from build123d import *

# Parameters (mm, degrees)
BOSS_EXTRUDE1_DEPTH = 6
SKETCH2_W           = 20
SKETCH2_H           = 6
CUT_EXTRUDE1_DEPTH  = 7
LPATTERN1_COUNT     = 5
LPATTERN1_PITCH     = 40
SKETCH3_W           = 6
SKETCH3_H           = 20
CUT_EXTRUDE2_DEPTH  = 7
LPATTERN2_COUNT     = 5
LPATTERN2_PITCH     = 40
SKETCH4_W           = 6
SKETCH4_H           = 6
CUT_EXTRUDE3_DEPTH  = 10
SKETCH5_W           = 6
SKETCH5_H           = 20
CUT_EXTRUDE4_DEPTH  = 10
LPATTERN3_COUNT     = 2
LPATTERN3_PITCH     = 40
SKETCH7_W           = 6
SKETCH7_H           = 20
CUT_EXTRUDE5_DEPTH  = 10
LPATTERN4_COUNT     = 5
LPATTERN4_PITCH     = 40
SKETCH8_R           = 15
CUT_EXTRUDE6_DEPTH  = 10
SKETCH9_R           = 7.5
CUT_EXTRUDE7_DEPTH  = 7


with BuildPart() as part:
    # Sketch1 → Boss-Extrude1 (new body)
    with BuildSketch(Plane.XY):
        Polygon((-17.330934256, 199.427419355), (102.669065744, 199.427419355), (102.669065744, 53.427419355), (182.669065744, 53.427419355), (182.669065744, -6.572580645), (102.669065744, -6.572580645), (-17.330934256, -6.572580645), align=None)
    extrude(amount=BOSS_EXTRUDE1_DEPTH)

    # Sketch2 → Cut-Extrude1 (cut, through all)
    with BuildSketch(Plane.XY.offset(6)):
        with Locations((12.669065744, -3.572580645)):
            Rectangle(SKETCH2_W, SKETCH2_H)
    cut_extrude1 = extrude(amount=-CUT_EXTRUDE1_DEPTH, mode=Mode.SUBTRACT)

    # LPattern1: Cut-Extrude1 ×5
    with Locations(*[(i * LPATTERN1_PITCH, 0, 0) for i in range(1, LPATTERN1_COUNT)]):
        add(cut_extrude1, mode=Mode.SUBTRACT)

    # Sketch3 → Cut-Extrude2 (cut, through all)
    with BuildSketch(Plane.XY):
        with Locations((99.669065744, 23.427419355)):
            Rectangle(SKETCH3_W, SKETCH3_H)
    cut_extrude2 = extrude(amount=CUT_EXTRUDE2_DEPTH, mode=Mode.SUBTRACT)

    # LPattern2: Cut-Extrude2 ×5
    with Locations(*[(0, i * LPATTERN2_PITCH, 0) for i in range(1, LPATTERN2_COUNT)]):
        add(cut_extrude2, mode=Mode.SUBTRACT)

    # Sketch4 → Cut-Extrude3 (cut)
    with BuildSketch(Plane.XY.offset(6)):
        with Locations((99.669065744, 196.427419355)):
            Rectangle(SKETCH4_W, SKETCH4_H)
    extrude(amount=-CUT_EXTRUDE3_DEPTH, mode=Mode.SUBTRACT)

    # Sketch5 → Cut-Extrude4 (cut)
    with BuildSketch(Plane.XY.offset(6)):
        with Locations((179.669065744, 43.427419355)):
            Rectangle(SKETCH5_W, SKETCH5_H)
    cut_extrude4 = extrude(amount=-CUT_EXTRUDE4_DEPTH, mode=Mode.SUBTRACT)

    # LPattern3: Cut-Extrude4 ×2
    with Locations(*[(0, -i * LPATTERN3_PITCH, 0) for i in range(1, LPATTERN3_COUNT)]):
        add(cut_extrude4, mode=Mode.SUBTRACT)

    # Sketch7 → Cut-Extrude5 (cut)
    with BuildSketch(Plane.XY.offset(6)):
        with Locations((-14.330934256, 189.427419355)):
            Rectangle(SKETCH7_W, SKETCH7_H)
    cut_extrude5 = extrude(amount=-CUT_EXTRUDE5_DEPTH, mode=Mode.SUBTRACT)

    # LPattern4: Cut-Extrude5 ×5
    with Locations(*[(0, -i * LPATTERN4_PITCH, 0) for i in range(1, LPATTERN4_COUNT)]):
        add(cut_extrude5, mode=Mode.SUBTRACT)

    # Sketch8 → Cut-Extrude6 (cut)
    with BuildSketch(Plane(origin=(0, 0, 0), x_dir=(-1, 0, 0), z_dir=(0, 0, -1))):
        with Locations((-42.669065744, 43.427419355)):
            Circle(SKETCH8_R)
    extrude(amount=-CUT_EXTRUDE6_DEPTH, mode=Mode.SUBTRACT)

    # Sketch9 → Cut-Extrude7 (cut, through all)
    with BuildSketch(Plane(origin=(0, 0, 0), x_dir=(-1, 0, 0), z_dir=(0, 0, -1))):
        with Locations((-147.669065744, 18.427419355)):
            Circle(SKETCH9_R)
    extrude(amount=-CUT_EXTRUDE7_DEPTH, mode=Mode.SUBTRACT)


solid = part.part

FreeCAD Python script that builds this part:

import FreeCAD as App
import Part
import Sketcher

V = App.Vector

doc = App.newDocument("Part")
body = doc.addObject("PartDesign::Body", "Body")

# Sketch on XY plane
sketch1 = doc.addObject("Sketcher::SketchObject", "Sketch")
body.addObject(sketch1)
sketch1.AttachmentSupport = (doc.XY_Plane, [""])
sketch1.MapMode = "FlatFace"
sketch1.addGeometry([
    Part.LineSegment(V(102.669066, 199.427419, 0), V(-17.330934, 199.427419, 0)),  # 0
    Part.LineSegment(V(-17.330934, 199.427419, 0), V(-17.330934, -6.572581, 0)),  # 1
    Part.LineSegment(V(-17.330934, -6.572581, 0), V(182.669066, -6.572581, 0)),  # 2
    Part.LineSegment(V(182.669066, -6.572581, 0), V(182.669066, 53.427419, 0)),  # 3
    Part.LineSegment(V(182.669066, 53.427419, 0), V(102.669066, 53.427419, 0)),  # 4
    Part.LineSegment(V(102.669066, 53.427419, 0), V(102.669066, 199.427419, 0)),  # 5
], False)
sketch1.addConstraint([
    Sketcher.Constraint("Coincident", 0, 2, 1, 1),
    Sketcher.Constraint("Coincident", 1, 2, 2, 1),
    Sketcher.Constraint("Coincident", 2, 2, 3, 1),
    Sketcher.Constraint("Coincident", 3, 2, 4, 1),
    Sketcher.Constraint("Coincident", 4, 2, 5, 1),
    Sketcher.Constraint("Coincident", 5, 2, 0, 1),
    Sketcher.Constraint("Horizontal", 0),
    Sketcher.Constraint("Vertical", 1),
    Sketcher.Constraint("Horizontal", 2),
    Sketcher.Constraint("Vertical", 3),
    Sketcher.Constraint("Horizontal", 4),
    Sketcher.Constraint("Vertical", 5),
    Sketcher.Constraint("DistanceX", 0, 2, 0, 1, 120.0),
    Sketcher.Constraint("DistanceX", 2, 1, 2, 2, 200.0),
    Sketcher.Constraint("DistanceY", 1, 2, 1, 1, 206.0),
    Sketcher.Constraint("DistanceY", 3, 1, 3, 2, 60.0),
    Sketcher.Constraint("DistanceY", -1, 1, 0, 2, 199.427419),
    Sketcher.Constraint("DistanceX", 0, 2, -1, 1, 17.330934),
])
pad1 = doc.addObject("PartDesign::Pad", "Pad")
body.addObject(pad1)
pad1.Profile = sketch1
pad1.Length = 6

# Sketch on XY plane
sketch2 = doc.addObject("Sketcher::SketchObject", "Sketch001")
body.addObject(sketch2)
sketch2.AttachmentSupport = (doc.XY_Plane, [""])
sketch2.MapMode = "FlatFace"
sketch2.AttachmentOffset = App.Placement(V(0, 0, 6), App.Rotation())
sketch2.addGeometry([
    Part.LineSegment(V(2.669066, -0.572581, 0), V(2.669066, -6.572581, 0)),
    Part.LineSegment(V(2.669066, -6.572581, 0), V(22.669066, -6.572581, 0)),
    Part.LineSegment(V(22.669066, -6.572581, 0), V(22.669066, -0.572581, 0)),
    Part.LineSegment(V(22.669066, -0.572581, 0), V(2.669066, -0.572581, 0)),
], False)
sketch2.addConstraint([
    Sketcher.Constraint("Coincident", 0, 2, 1, 1),
    Sketcher.Constraint("Coincident", 1, 2, 2, 1),
    Sketcher.Constraint("Coincident", 2, 2, 3, 1),
    Sketcher.Constraint("Coincident", 3, 2, 0, 1),
    Sketcher.Constraint("Vertical", 0),
    Sketcher.Constraint("Horizontal", 1),
    Sketcher.Constraint("Vertical", 2),
    Sketcher.Constraint("Horizontal", 3),
    Sketcher.Constraint("DistanceX", 1, 1, 1, 2, 20.0),
    Sketcher.Constraint("DistanceY", 0, 2, 0, 1, 6.0),
    Sketcher.Constraint("DistanceY", 0, 2, -1, 1, 6.572581),
    Sketcher.Constraint("DistanceX", -1, 1, 0, 2, 2.669066),
])
pocket1 = doc.addObject("PartDesign::Pocket", "Pocket")
body.addObject(pocket1)
pocket1.Profile = sketch2
pocket1.Type = "ThroughAll"
doc.recompute()

linearpattern = doc.addObject("PartDesign::LinearPattern", "LinearPattern")
body.addObject(linearpattern)
linearpattern.Originals = [pocket1]
linearpattern.Direction = (doc.X_Axis, [""])
linearpattern.Mode = "offset"
linearpattern.Offset = 40
linearpattern.Occurrences = 5
body.Tip = linearpattern

# Sketch on XY plane
sketch3 = doc.addObject("Sketcher::SketchObject", "Sketch002")
body.addObject(sketch3)
sketch3.AttachmentSupport = (doc.XY_Plane, [""])
sketch3.MapMode = "FlatFace"
sketch3.addGeometry([
    Part.LineSegment(V(96.669066, 33.427419, 0), V(96.669066, 13.427419, 0)),
    Part.LineSegment(V(96.669066, 13.427419, 0), V(102.669066, 13.427419, 0)),
    Part.LineSegment(V(102.669066, 13.427419, 0), V(102.669066, 33.427419, 0)),
    Part.LineSegment(V(102.669066, 33.427419, 0), V(96.669066, 33.427419, 0)),
], False)
sketch3.addConstraint([
    Sketcher.Constraint("Coincident", 0, 2, 1, 1),
    Sketcher.Constraint("Coincident", 1, 2, 2, 1),
    Sketcher.Constraint("Coincident", 2, 2, 3, 1),
    Sketcher.Constraint("Coincident", 3, 2, 0, 1),
    Sketcher.Constraint("Vertical", 0),
    Sketcher.Constraint("Horizontal", 1),
    Sketcher.Constraint("Vertical", 2),
    Sketcher.Constraint("Horizontal", 3),
    Sketcher.Constraint("DistanceX", 1, 1, 1, 2, 6.0),
    Sketcher.Constraint("DistanceY", 0, 2, 0, 1, 20.0),
    Sketcher.Constraint("DistanceY", -1, 1, 0, 2, 13.427419),
    Sketcher.Constraint("DistanceX", -1, 1, 0, 2, 96.669066),
])
pocket2 = doc.addObject("PartDesign::Pocket", "Pocket001")
body.addObject(pocket2)
pocket2.Profile = sketch3
pocket2.Type = "ThroughAll"
pocket2.Reversed = True
doc.recompute()

linearpattern2 = doc.addObject("PartDesign::LinearPattern", "LinearPattern001")
body.addObject(linearpattern2)
linearpattern2.Originals = [pocket2]
linearpattern2.Direction = (doc.Y_Axis, [""])
linearpattern2.Mode = "offset"
linearpattern2.Offset = 40
linearpattern2.Occurrences = 5
body.Tip = linearpattern2

# Sketch on XY plane
sketch4 = doc.addObject("Sketcher::SketchObject", "Sketch003")
body.addObject(sketch4)
sketch4.AttachmentSupport = (doc.XY_Plane, [""])
sketch4.MapMode = "FlatFace"
sketch4.AttachmentOffset = App.Placement(V(0, 0, 6), App.Rotation())
sketch4.addGeometry([
    Part.LineSegment(V(96.669066, 199.427419, 0), V(96.669066, 193.427419, 0)),
    Part.LineSegment(V(96.669066, 193.427419, 0), V(102.669066, 193.427419, 0)),
    Part.LineSegment(V(102.669066, 193.427419, 0), V(102.669066, 199.427419, 0)),
    Part.LineSegment(V(102.669066, 199.427419, 0), V(96.669066, 199.427419, 0)),
], False)
sketch4.addConstraint([
    Sketcher.Constraint("Coincident", 0, 2, 1, 1),
    Sketcher.Constraint("Coincident", 1, 2, 2, 1),
    Sketcher.Constraint("Coincident", 2, 2, 3, 1),
    Sketcher.Constraint("Coincident", 3, 2, 0, 1),
    Sketcher.Constraint("Vertical", 0),
    Sketcher.Constraint("Horizontal", 1),
    Sketcher.Constraint("Vertical", 2),
    Sketcher.Constraint("Horizontal", 3),
    Sketcher.Constraint("Equal", 3, 0),
    Sketcher.Constraint("DistanceX", 1, 1, 1, 2, 6.0),
    Sketcher.Constraint("DistanceY", -1, 1, 0, 2, 193.427419),
    Sketcher.Constraint("DistanceX", -1, 1, 0, 2, 96.669066),
])
pocket3 = doc.addObject("PartDesign::Pocket", "Pocket002")
body.addObject(pocket3)
pocket3.Profile = sketch4
pocket3.Length = 10

# Sketch on XY plane
sketch5 = doc.addObject("Sketcher::SketchObject", "Sketch004")
body.addObject(sketch5)
sketch5.AttachmentSupport = (doc.XY_Plane, [""])
sketch5.MapMode = "FlatFace"
sketch5.AttachmentOffset = App.Placement(V(0, 0, 6), App.Rotation())
sketch5.addGeometry([
    Part.LineSegment(V(176.669066, 53.427419, 0), V(176.669066, 33.427419, 0)),
    Part.LineSegment(V(176.669066, 33.427419, 0), V(182.669066, 33.427419, 0)),
    Part.LineSegment(V(182.669066, 33.427419, 0), V(182.669066, 53.427419, 0)),
    Part.LineSegment(V(182.669066, 53.427419, 0), V(176.669066, 53.427419, 0)),
], False)
sketch5.addConstraint([
    Sketcher.Constraint("Coincident", 0, 2, 1, 1),
    Sketcher.Constraint("Coincident", 1, 2, 2, 1),
    Sketcher.Constraint("Coincident", 2, 2, 3, 1),
    Sketcher.Constraint("Coincident", 3, 2, 0, 1),
    Sketcher.Constraint("Vertical", 0),
    Sketcher.Constraint("Horizontal", 1),
    Sketcher.Constraint("Vertical", 2),
    Sketcher.Constraint("Horizontal", 3),
    Sketcher.Constraint("DistanceX", 1, 1, 1, 2, 6.0),
    Sketcher.Constraint("DistanceY", 0, 2, 0, 1, 20.0),
    Sketcher.Constraint("DistanceY", -1, 1, 0, 2, 33.427419),
    Sketcher.Constraint("DistanceX", -1, 1, 0, 2, 176.669066),
])
pocket4 = doc.addObject("PartDesign::Pocket", "Pocket003")
body.addObject(pocket4)
pocket4.Profile = sketch5
pocket4.Length = 10
doc.recompute()

linearpattern3 = doc.addObject("PartDesign::LinearPattern", "LinearPattern002")
body.addObject(linearpattern3)
linearpattern3.Originals = [pocket4]
linearpattern3.Direction = (doc.Y_Axis, [""])
linearpattern3.Mode = "offset"
linearpattern3.Offset = 40
linearpattern3.Occurrences = 2
linearpattern3.Reversed = True
body.Tip = linearpattern3

# Sketch on XY plane
sketch6 = doc.addObject("Sketcher::SketchObject", "Sketch005")
body.addObject(sketch6)
sketch6.AttachmentSupport = (doc.XY_Plane, [""])
sketch6.MapMode = "FlatFace"
sketch6.AttachmentOffset = App.Placement(V(0, 0, 6), App.Rotation())
sketch6.addGeometry([
    Part.LineSegment(V(-17.330934, 199.427419, 0), V(-17.330934, 179.427419, 0)),
    Part.LineSegment(V(-17.330934, 179.427419, 0), V(-11.330934, 179.427419, 0)),
    Part.LineSegment(V(-11.330934, 179.427419, 0), V(-11.330934, 199.427419, 0)),
    Part.LineSegment(V(-11.330934, 199.427419, 0), V(-17.330934, 199.427419, 0)),
], False)
sketch6.addConstraint([
    Sketcher.Constraint("Coincident", 0, 2, 1, 1),
    Sketcher.Constraint("Coincident", 1, 2, 2, 1),
    Sketcher.Constraint("Coincident", 2, 2, 3, 1),
    Sketcher.Constraint("Coincident", 3, 2, 0, 1),
    Sketcher.Constraint("Vertical", 0),
    Sketcher.Constraint("Horizontal", 1),
    Sketcher.Constraint("Vertical", 2),
    Sketcher.Constraint("Horizontal", 3),
    Sketcher.Constraint("DistanceX", 1, 1, 1, 2, 6.0),
    Sketcher.Constraint("DistanceY", 0, 2, 0, 1, 20.0),
    Sketcher.Constraint("DistanceY", -1, 1, 0, 2, 179.427419),
    Sketcher.Constraint("DistanceX", 0, 2, -1, 1, 17.330934),
])
pocket5 = doc.addObject("PartDesign::Pocket", "Pocket004")
body.addObject(pocket5)
pocket5.Profile = sketch6
pocket5.Length = 10
doc.recompute()

linearpattern4 = doc.addObject("PartDesign::LinearPattern", "LinearPattern003")
body.addObject(linearpattern4)
linearpattern4.Originals = [pocket5]
linearpattern4.Direction = (doc.Y_Axis, [""])
linearpattern4.Mode = "offset"
linearpattern4.Offset = 40
linearpattern4.Occurrences = 5
linearpattern4.Reversed = True
body.Tip = linearpattern4

# Sketch on XY plane
sketch7 = doc.addObject("Sketcher::SketchObject", "Sketch006")
body.addObject(sketch7)
sketch7.AttachmentSupport = (doc.XY_Plane, [""])
sketch7.MapMode = "FlatFace"
sketch7.addGeometry(Part.Circle(V(42.669066, 43.427419, 0), V(0, 0, 1), 15), False)
sketch7.addConstraint([
    Sketcher.Constraint("Diameter", 0, 30.0),
    Sketcher.Constraint("DistanceY", -1, 1, 0, 3, 43.427419),
    Sketcher.Constraint("DistanceX", -1, 1, 0, 3, 42.669066),
])
pocket6 = doc.addObject("PartDesign::Pocket", "Pocket005")
body.addObject(pocket6)
pocket6.Profile = sketch7
pocket6.Length = 10
pocket6.Reversed = True

# Sketch on XY plane
sketch8 = doc.addObject("Sketcher::SketchObject", "Sketch007")
body.addObject(sketch8)
sketch8.AttachmentSupport = (doc.XY_Plane, [""])
sketch8.MapMode = "FlatFace"
sketch8.addGeometry(Part.Circle(V(147.669066, 18.427419, 0), V(0, 0, 1), 7.5), False)
sketch8.addConstraint([
    Sketcher.Constraint("Diameter", 0, 15.0),
    Sketcher.Constraint("DistanceY", -1, 1, 0, 3, 18.427419),
    Sketcher.Constraint("DistanceX", -1, 1, 0, 3, 147.669066),
])
pocket7 = doc.addObject("PartDesign::Pocket", "Pocket006")
body.addObject(pocket7)
pocket7.Profile = sketch8
pocket7.Type = "ThroughAll"
pocket7.Reversed = True

doc.recompute()
